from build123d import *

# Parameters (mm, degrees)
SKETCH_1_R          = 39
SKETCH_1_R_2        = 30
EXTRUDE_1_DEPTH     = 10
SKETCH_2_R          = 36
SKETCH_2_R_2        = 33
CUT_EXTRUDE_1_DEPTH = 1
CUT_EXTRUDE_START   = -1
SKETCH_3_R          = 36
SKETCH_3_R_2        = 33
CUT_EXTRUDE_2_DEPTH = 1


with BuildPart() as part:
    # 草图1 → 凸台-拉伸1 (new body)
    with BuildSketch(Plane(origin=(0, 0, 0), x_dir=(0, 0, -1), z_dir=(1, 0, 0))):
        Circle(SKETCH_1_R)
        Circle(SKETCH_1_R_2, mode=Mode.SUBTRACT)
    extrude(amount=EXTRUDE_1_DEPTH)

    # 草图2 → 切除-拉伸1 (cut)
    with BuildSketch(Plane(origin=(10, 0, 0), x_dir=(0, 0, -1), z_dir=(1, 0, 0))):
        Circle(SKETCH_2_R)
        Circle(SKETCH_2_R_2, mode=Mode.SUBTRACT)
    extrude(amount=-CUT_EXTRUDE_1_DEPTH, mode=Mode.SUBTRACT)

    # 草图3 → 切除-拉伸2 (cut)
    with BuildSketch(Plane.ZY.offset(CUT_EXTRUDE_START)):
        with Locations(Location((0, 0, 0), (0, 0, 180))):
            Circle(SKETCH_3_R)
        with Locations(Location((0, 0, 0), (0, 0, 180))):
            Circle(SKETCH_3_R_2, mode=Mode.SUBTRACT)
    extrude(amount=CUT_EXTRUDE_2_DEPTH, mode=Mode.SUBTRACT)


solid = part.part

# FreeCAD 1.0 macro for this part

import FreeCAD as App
import Part
import Sketcher

V = App.Vector
Q = App.Units.Quantity

doc = App.newDocument("Part")
body = doc.addObject("PartDesign::Body", "Body")

# Sketch on YZ plane
sketch1 = doc.addObject("Sketcher::SketchObject", "Sketch")
body.addObject(sketch1)
sketch1.AttachmentSupport = (doc.YZ_Plane, [""])
sketch1.MapMode = "FlatFace"
sketch1.addGeometry(Part.Circle(V(0, 0, 0), V(0, 0, 1), 39), False)
sketch1.addGeometry(Part.Circle(V(0, 0, 0), V(0, 0, 1), 30), False)
sketch1.addConstraint(Sketcher.Constraint("Coincident", 0, 3, -1, 1))
sketch1.addConstraint(Sketcher.Constraint("Coincident", 1, 3, -1, 1))
sketch1.addConstraint(Sketcher.Constraint("Diameter", 0, Q("78 mm")))
sketch1.addConstraint(Sketcher.Constraint("Diameter", 1, Q("60 mm")))
pad1 = doc.addObject("PartDesign::Pad", "Pad")
body.addObject(pad1)
pad1.Profile = sketch1
pad1.Length = 10

# Sketch on YZ plane
sketch2 = doc.addObject("Sketcher::SketchObject", "Sketch001")
body.addObject(sketch2)
sketch2.AttachmentSupport = (doc.YZ_Plane, [""])
sketch2.MapMode = "FlatFace"
sketch2.AttachmentOffset = App.Placement(V(0, 0, 10), App.Rotation())
sketch2.addGeometry(Part.Circle(V(0, 0, 0), V(0, 0, 1), 36), False)
sketch2.addGeometry(Part.Circle(V(0, 0, 0), V(0, 0, 1), 33), False)
sketch2.addConstraint(Sketcher.Constraint("Coincident", 0, 3, -1, 1))
sketch2.addConstraint(Sketcher.Constraint("Coincident", 1, 3, -1, 1))
sketch2.addConstraint(Sketcher.Constraint("Diameter", 0, Q("72 mm")))
sketch2.addConstraint(Sketcher.Constraint("Diameter", 1, Q("66 mm")))
pocket1 = doc.addObject("PartDesign::Pocket", "Pocket")
body.addObject(pocket1)
pocket1.Profile = sketch2
pocket1.Length = 1

# Sketch on YZ plane
sketch3 = doc.addObject("Sketcher::SketchObject", "Sketch002")
body.addObject(sketch3)
sketch3.AttachmentSupport = (doc.YZ_Plane, [""])
sketch3.MapMode = "FlatFace"
sketch3.AttachmentOffset = App.Placement(V(0, 0, 1), App.Rotation())
sketch3.addGeometry(Part.Circle(V(0, 0, 0), V(0, 0, 1), 36), False)
sketch3.addGeometry(Part.Circle(V(0, 0, 0), V(0, 0, 1), 33), False)
sketch3.addConstraint(Sketcher.Constraint("Coincident", 0, 3, -1, 1))
sketch3.addConstraint(Sketcher.Constraint("Coincident", 1, 3, -1, 1))
sketch3.addConstraint(Sketcher.Constraint("Diameter", 0, Q("72 mm")))
sketch3.addConstraint(Sketcher.Constraint("Diameter", 1, Q("66 mm")))
pocket2 = doc.addObject("PartDesign::Pocket", "Pocket001")
body.addObject(pocket2)
pocket2.Profile = sketch3
pocket2.Length = 1

doc.recompute()
